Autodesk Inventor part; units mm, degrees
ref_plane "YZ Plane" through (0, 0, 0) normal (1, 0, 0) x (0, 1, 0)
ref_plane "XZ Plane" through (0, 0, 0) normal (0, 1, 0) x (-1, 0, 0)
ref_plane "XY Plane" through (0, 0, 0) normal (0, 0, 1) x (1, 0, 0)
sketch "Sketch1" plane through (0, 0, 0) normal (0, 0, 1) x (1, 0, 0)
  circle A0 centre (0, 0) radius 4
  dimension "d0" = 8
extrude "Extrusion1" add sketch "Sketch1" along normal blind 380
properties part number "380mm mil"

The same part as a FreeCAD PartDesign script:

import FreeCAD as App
import Part
import Sketcher

V = App.Vector

doc = App.newDocument("Part")
params = doc.addObject("Spreadsheet::Sheet", "Params")
for row, (alias, value) in enumerate([
    ("sketch1_diameter", "8 mm"),
    ("pad1_length", "380 mm"),
], start=1):
    params.set(f"A{row}", alias)
    params.set(f"B{row}", "=" + value)
    params.setAlias(f"B{row}", alias)

body = doc.addObject("PartDesign::Body", "Body")

# Sketch on XY plane
sketch1 = body.newObject("Sketcher::SketchObject", "Sketch")
sketch1.AttachmentSupport = (doc.getObject("XY_Plane"), [""])
sketch1.MapMode = "FlatFace"
sketch1.addGeometry(Part.Circle(V(0, 0, 0), V(0, 0, 1), 4), False)
sketch1.addConstraint([
    Sketcher.Constraint("Coincident", 0, 3, -1, 1),
    Sketcher.Constraint("Diameter", 0, 8.0),
])
sketch1.setExpression("Constraints[1]", "Params.sketch1_diameter")
pad1 = body.newObject("PartDesign::Pad", "Pad")
pad1.Profile = sketch1
pad1.setExpression("Length", "Params.pad1_length")

doc.recompute()
